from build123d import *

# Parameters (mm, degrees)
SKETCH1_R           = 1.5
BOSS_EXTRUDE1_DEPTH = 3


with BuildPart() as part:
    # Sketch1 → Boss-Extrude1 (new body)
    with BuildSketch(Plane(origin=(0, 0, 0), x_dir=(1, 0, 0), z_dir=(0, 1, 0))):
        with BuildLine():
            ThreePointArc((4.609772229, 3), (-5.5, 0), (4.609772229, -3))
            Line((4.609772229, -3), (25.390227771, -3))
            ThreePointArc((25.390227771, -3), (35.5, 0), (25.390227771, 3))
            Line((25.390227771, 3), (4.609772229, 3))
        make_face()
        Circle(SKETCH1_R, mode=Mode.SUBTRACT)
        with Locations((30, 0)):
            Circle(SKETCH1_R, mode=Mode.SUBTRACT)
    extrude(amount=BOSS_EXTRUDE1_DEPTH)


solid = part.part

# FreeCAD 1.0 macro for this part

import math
import FreeCAD as App
import Part
import Sketcher
from FreeCAD import Vector

doc = App.newDocument("Part")
body = doc.addObject("PartDesign::Body", "Body")

# Sketch on XZ plane
sketch1 = body.newObject("Sketcher::SketchObject", "Sketch")
sketch1.AttachmentSupport = (doc.getObject("XZ_Plane"), [""])
sketch1.MapMode = "FlatFace"
sketch1.addGeometry([
    Part.ArcOfCircle(Part.Circle(Vector(0, 0, 0), Vector(0, 0, 1), 5.5), math.radians(33), math.radians(327)),  # 0
    Part.LineSegment(Vector(4.6, 3, 0), Vector(25.4, 3, 0)),  # 1
    Part.ArcOfCircle(Part.Circle(Vector(30, 0, 0), Vector(0, 0, 1), 5.5), math.radians(-147), math.radians(147)),  # 2
    Part.LineSegment(Vector(25.4, -3, 0), Vector(4.6, -3, 0)),  # 3
    Part.Circle(Vector(0, 0, 0), Vector(0, 0, 1), 1.5),  # 4
    Part.Circle(Vector(30, 0, 0), Vector(0, 0, 1), 1.5),  # 5
], False)
sketch1.addConstraint([
    Sketcher.Constraint("Coincident", 0, 1, 1, 1),
    Sketcher.Constraint("Coincident", 1, 2, 2, 2),
    Sketcher.Constraint("Coincident", 2, 1, 3, 1),
    Sketcher.Constraint("Coincident", 3, 2, 0, 2),
    Sketcher.Constraint("Horizontal", 1),
    Sketcher.Constraint("Horizontal", 3),
    Sketcher.Constraint("Coincident", 0, 3, -1, 1),
    Sketcher.Constraint("Coincident", 4, 3, -1, 1),
    Sketcher.Constraint("Coincident", 5, 3, 2, 3),
    Sketcher.Constraint("Equal", 0, 2),
    Sketcher.Constraint("Equal", 4, 5),
    Sketcher.Constraint("Symmetric", 1, 2, 2, 1, -1),
    Sketcher.Constraint("Diameter", 4, 3.0),
    Sketcher.Constraint("Radius", 0, 5.5),
    Sketcher.Constraint("DistanceX", -1, 1, 2, 3, 30.0),
    Sketcher.Constraint("DistanceY", -1, 1, 0, 1, 3.0),
])
pad1 = body.newObject("PartDesign::Pad", "Pad")
pad1.Profile = sketch1
pad1.Length = 3
pad1.Reversed = True

doc.recompute()
